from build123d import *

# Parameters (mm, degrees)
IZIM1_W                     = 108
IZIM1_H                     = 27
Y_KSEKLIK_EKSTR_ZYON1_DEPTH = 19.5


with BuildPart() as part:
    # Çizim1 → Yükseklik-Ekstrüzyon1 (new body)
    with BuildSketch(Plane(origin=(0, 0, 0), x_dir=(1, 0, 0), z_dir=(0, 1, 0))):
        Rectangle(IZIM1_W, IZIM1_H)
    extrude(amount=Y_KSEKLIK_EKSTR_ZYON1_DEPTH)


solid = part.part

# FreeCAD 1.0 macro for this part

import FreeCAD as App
import Part
import Sketcher


def add_polygon(sketch, points):
    """Adds a closed chain of lines whose ends are joined by coincident constraints."""
    first, n = sketch.GeometryCount, len(points)
    for a, b in zip(points, points[1:] + points[:1]):
        sketch.addGeometry(Part.LineSegment(App.Vector(*a, 0), App.Vector(*b, 0)), False)
    for i in range(n):
        sketch.addConstraint(Sketcher.Constraint("Coincident", first + i, 2, first + (i + 1) % n, 1))

doc = App.newDocument("Part")
params = doc.addObject("Spreadsheet::Sheet", "Params")
for row, (alias, value) in enumerate([
    ("sketch1_width", "108 mm"),
    ("sketch1_height", "27 mm"),
    ("pad1_length", "19.5 mm"),
], start=1):
    params.set(f"A{row}", alias)
    params.set(f"B{row}", "=" + value)
    params.setAlias(f"B{row}", alias)

body = doc.addObject("PartDesign::Body", "Body")

# Sketch on XZ plane
sketch1 = doc.addObject("Sketcher::SketchObject", "Sketch")
body.addObject(sketch1)
sketch1.AttachmentSupport = (doc.XZ_Plane, [""])
sketch1.MapMode = "FlatFace"
add_polygon(sketch1, [(-54, -14), (-54, 14), (54, 14), (54, -14)])  # lines 0-3
sketch1.addConstraint(Sketcher.Constraint("Vertical", 0))
sketch1.addConstraint(Sketcher.Constraint("Horizontal", 1))
sketch1.addConstraint(Sketcher.Constraint("Vertical", 2))
sketch1.addConstraint(Sketcher.Constraint("Horizontal", 3))
sketch1.addConstraint(Sketcher.Constraint("Symmetric", 0, 2, 2, 2, -1, 1))
sketch1.addConstraint(Sketcher.Constraint("DistanceX", 1, 1, 1, 2, 108.0))
sketch1.addConstraint(Sketcher.Constraint("DistanceY", 0, 1, 0, 2, 27.0))
sketch1.setExpression("Constraints[9]", "Params.sketch1_width")
sketch1.setExpression("Constraints[10]", "Params.sketch1_height")
pad1 = doc.addObject("PartDesign::Pad", "Pad")
body.addObject(pad1)
pad1.Profile = sketch1
pad1.setExpression("Length", "Params.pad1_length")
pad1.Reversed = True

doc.recompute()
